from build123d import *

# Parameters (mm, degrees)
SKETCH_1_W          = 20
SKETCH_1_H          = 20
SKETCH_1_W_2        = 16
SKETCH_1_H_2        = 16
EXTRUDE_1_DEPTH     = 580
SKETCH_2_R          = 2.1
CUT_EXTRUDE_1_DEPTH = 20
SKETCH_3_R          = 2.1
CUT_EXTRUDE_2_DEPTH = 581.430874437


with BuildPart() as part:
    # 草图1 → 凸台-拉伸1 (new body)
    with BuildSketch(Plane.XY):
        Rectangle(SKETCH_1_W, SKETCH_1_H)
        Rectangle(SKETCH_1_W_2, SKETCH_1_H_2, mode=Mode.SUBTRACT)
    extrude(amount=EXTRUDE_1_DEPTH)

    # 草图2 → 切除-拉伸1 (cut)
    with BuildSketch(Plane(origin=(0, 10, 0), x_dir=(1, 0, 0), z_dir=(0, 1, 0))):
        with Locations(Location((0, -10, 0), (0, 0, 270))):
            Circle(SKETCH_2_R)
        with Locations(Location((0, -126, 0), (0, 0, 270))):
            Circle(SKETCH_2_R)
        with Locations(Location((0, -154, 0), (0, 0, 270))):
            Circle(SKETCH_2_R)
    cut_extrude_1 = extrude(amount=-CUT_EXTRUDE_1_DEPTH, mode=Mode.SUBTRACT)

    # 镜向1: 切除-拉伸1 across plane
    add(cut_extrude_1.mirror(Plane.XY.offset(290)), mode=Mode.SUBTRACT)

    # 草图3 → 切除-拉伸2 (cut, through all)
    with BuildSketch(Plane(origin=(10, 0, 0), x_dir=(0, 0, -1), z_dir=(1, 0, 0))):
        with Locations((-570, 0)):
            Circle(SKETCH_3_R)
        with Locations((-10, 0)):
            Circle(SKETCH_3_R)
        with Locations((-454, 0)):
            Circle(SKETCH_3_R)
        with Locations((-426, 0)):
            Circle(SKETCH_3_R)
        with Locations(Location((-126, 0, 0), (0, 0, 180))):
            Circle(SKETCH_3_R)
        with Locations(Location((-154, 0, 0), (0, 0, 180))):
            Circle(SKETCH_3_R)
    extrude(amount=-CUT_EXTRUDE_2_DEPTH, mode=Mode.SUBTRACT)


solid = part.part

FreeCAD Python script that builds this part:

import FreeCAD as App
import Part
import Sketcher

V = App.Vector
Q = App.Units.Quantity

doc = App.newDocument("Part")
body = doc.addObject("PartDesign::Body", "Body")

# Sketch on XY plane
sketch1 = body.newObject("Sketcher::SketchObject", "Sketch")
sketch1.AttachmentSupport = (doc.getObject("XY_Plane"), [""])
sketch1.MapMode = "FlatFace"
sketch1.addGeometry(Part.LineSegment(V(-10, 10, 0), V(-10, -10, 0)), False)
sketch1.addGeometry(Part.LineSegment(V(-10, -10, 0), V(10, -10, 0)), False)
sketch1.addGeometry(Part.LineSegment(V(10, -10, 0), V(10, 10, 0)), False)
sketch1.addGeometry(Part.LineSegment(V(10, 10, 0), V(-10, 10, 0)), False)
sketch1.addGeometry(Part.LineSegment(V(8, -8, 0), V(-8, -8, 0)), False)
sketch1.addGeometry(Part.LineSegment(V(-8, -8, 0), V(-8, 8, 0)), False)
sketch1.addGeometry(Part.LineSegment(V(-8, 8, 0), V(8, 8, 0)), False)
sketch1.addGeometry(Part.LineSegment(V(8, 8, 0), V(8, -8, 0)), False)
sketch1.addConstraint(Sketcher.Constraint("Coincident", 0, 2, 1, 1))
sketch1.addConstraint(Sketcher.Constraint("Coincident", 1, 2, 2, 1))
sketch1.addConstraint(Sketcher.Constraint("Coincident", 2, 2, 3, 1))
sketch1.addConstraint(Sketcher.Constraint("Coincident", 3, 2, 0, 1))
sketch1.addConstraint(Sketcher.Constraint("Coincident", 4, 2, 5, 1))
sketch1.addConstraint(Sketcher.Constraint("Coincident", 5, 2, 6, 1))
sketch1.addConstraint(Sketcher.Constraint("Coincident", 6, 2, 7, 1))
sketch1.addConstraint(Sketcher.Constraint("Coincident", 7, 2, 4, 1))
sketch1.addConstraint(Sketcher.Constraint("Vertical", 0))
sketch1.addConstraint(Sketcher.Constraint("Horizontal", 1))
sketch1.addConstraint(Sketcher.Constraint("Vertical", 2))
sketch1.addConstraint(Sketcher.Constraint("Horizontal", 3))
sketch1.addConstraint(Sketcher.Constraint("Horizontal", 4))
sketch1.addConstraint(Sketcher.Constraint("Vertical", 5))
sketch1.addConstraint(Sketcher.Constraint("Horizontal", 6))
sketch1.addConstraint(Sketcher.Constraint("Vertical", 7))
sketch1.addConstraint(Sketcher.Constraint("Symmetric", 0, 2, 2, 2, -1, 1))
sketch1.addConstraint(Sketcher.Constraint("Symmetric", 4, 2, 6, 2, -1, 1))
sketch1.addConstraint(Sketcher.Constraint("Equal", 3, 0))
sketch1.addConstraint(Sketcher.Constraint("Equal", 6, 5))
sketch1.addConstraint(Sketcher.Constraint("DistanceX", 1, 1, 1, 2, Q("20 mm")))
sketch1.addConstraint(Sketcher.Constraint("DistanceX", 4, 2, 4, 1, Q("16 mm")))
pad1 = body.newObject("PartDesign::Pad", "Pad")
pad1.Profile = sketch1
pad1.Length = 580

# Sketch on XZ plane
sketch2 = body.newObject("Sketcher::SketchObject", "Sketch001")
sketch2.AttachmentSupport = (doc.getObject("XZ_Plane"), [""])
sketch2.MapMode = "FlatFace"
sketch2.AttachmentOffset = App.Placement(V(0, 0, -10), App.Rotation())
sketch2.addGeometry(Part.Circle(V(0, 10, 0), V(0, 0, 1), 2.1), False)
sketch2.addGeometry(Part.Circle(V(0, 126, 0), V(0, 0, 1), 2.1), False)
sketch2.addGeometry(Part.Circle(V(0, 154, 0), V(0, 0, 1), 2.1), False)
sketch2.addConstraint(Sketcher.Constraint("Equal", 0, 1))
sketch2.addConstraint(Sketcher.Constraint("Equal", 1, 2))
sketch2.addConstraint(Sketcher.Constraint("PointOnObject", 0, 3, -2))
sketch2.addConstraint(Sketcher.Constraint("PointOnObject", 1, 3, -2))
sketch2.addConstraint(Sketcher.Constraint("PointOnObject", 2, 3, -2))
sketch2.addConstraint(Sketcher.Constraint("Diameter", 0, Q("4.2 mm")))
sketch2.addConstraint(Sketcher.Constraint("DistanceY", -1, 1, 0, 3, Q("10 mm")))
sketch2.addConstraint(Sketcher.Constraint("DistanceY", -1, 1, 1, 3, Q("126 mm")))
sketch2.addConstraint(Sketcher.Constraint("DistanceY", -1, 1, 2, 3, Q("154 mm")))
pocket1 = body.newObject("PartDesign::Pocket", "Pocket")
pocket1.Profile = sketch2
pocket1.Length = 20
pocket1.Reversed = True
doc.recompute()

datumplane = body.newObject("PartDesign::Plane", "DatumPlane")
datumplane.AttachmentSupport = (doc.getObject("XY_Plane"), [""])
datumplane.MapMode = "FlatFace"
datumplane.AttachmentOffset = App.Placement(V(0, 0, 290), App.Rotation())
mirrored = body.newObject("PartDesign::Mirrored", "Mirrored")
mirrored.Originals = [pocket1]
mirrored.MirrorPlane = (datumplane, [""])
body.Tip = mirrored

# Sketch on YZ plane
sketch3 = body.newObject("Sketcher::SketchObject", "Sketch002")
sketch3.AttachmentSupport = (doc.getObject("YZ_Plane"), [""])
sketch3.MapMode = "FlatFace"
sketch3.AttachmentOffset = App.Placement(V(0, 0, 10), App.Rotation())
sketch3.addGeometry(Part.Circle(V(0, 570, 0), V(0, 0, 1), 2.1), False)
sketch3.addGeometry(Part.Circle(V(0, 10, 0), V(0, 0, 1), 2.1), False)
sketch3.addGeometry(Part.Circle(V(0, 454, 0), V(0, 0, 1), 2.1), False)
sketch3.addGeometry(Part.Circle(V(0, 426, 0), V(0, 0, 1), 2.1), False)
sketch3.addGeometry(Part.Circle(V(0, 126, 0), V(0, 0, 1), 2.1), False)
sketch3.addGeometry(Part.Circle(V(0, 154, 0), V(0, 0, 1), 2.1), False)
sketch3.addConstraint(Sketcher.Constraint("Equal", 0, 1))
sketch3.addConstraint(Sketcher.Constraint("Equal", 1, 2))
sketch3.addConstraint(Sketcher.Constraint("Equal", 2, 3))
sketch3.addConstraint(Sketcher.Constraint("Equal", 3, 4))
sketch3.addConstraint(Sketcher.Constraint("Equal", 4, 5))
sketch3.addConstraint(Sketcher.Constraint("PointOnObject", 0, 3, -2))
sketch3.addConstraint(Sketcher.Constraint("PointOnObject", 1, 3, -2))
sketch3.addConstraint(Sketcher.Constraint("PointOnObject", 2, 3, -2))
sketch3.addConstraint(Sketcher.Constraint("PointOnObject", 3, 3, -2))
sketch3.addConstraint(Sketcher.Constraint("PointOnObject", 4, 3, -2))
sketch3.addConstraint(Sketcher.Constraint("PointOnObject", 5, 3, -2))
sketch3.addConstraint(Sketcher.Constraint("Diameter", 0, Q("4.2 mm")))
sketch3.addConstraint(Sketcher.Constraint("DistanceY", -1, 1, 0, 3, Q("570 mm")))
sketch3.addConstraint(Sketcher.Constraint("DistanceY", -1, 1, 1, 3, Q("10 mm")))
sketch3.addConstraint(Sketcher.Constraint("DistanceY", -1, 1, 2, 3, Q("454 mm")))
sketch3.addConstraint(Sketcher.Constraint("DistanceY", -1, 1, 3, 3, Q("426 mm")))
sketch3.addConstraint(Sketcher.Constraint("DistanceY", -1, 1, 4, 3, Q("126 mm")))
sketch3.addConstraint(Sketcher.Constraint("DistanceY", -1, 1, 5, 3, Q("154 mm")))
pocket2 = body.newObject("PartDesign::Pocket", "Pocket001")
pocket2.Profile = sketch3
pocket2.Type = "ThroughAll"

doc.recompute()
